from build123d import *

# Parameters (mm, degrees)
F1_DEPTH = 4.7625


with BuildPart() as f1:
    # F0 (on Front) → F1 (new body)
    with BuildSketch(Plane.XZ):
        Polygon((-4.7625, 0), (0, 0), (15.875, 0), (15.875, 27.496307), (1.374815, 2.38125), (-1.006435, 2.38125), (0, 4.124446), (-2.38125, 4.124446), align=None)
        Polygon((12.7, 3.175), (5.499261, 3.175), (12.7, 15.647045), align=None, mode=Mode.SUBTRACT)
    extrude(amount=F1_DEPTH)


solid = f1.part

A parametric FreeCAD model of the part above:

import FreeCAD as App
import Part
import Sketcher
Q = App.Units.Quantity


def add_polygon(sketch, points):
    """Adds a closed chain of lines whose ends are joined by coincident constraints."""
    first, n = sketch.GeometryCount, len(points)
    for a, b in zip(points, points[1:] + points[:1]):
        sketch.addGeometry(Part.LineSegment(App.Vector(*a, 0), App.Vector(*b, 0)), False)
    for i in range(n):
        sketch.addConstraint(Sketcher.Constraint("Coincident", first + i, 2, first + (i + 1) % n, 1))

doc = App.newDocument("Part")
body = doc.addObject("PartDesign::Body", "Body")

sketch1 = body.newObject("Sketcher::SketchObject", "Sketch")
sketch1.AttachmentSupport = (doc.getObject("XZ_Plane"), [""])
sketch1.MapMode = "FlatFace"
add_polygon(sketch1, [(-4.7625, 0), (15.875, 0), (15.875, 27.496307), (1.374815, 2.38125), (-1.006435, 2.38125), (0, 4.124446), (-2.38125, 4.124446)])
add_polygon(sketch1, [(12.7, 15.647045), (12.7, 3.175), (5.499261, 3.175)])
sketch1.addConstraint([
    Sketcher.Constraint("Horizontal", 0),
    Sketcher.Constraint("Vertical", 1),
    Sketcher.Constraint("Horizontal", 3),
    Sketcher.Constraint("Horizontal", 5),
    Sketcher.Constraint("Vertical", 7),
    Sketcher.Constraint("Horizontal", 8),
    Sketcher.Constraint("PointOnObject", 0, 2, -1),
    Sketcher.Constraint("PointOnObject", 4, 2, -2),
    Sketcher.Constraint("Parallel", 2, 4),
    Sketcher.Constraint("Parallel", 4, 6),
    Sketcher.Constraint("Parallel", 6, 9),
    Sketcher.Constraint("Equal", 3, 5),
    Sketcher.Constraint("Angle", 2, Q("-120 deg")),
    Sketcher.Constraint("DistanceX", -1, 1, 7, 2, Q("0.5 in")),
    Sketcher.Constraint("DistanceX", 0, 1, 0, 2, Q("0.8125 in")),
    Sketcher.Constraint("DistanceX", 3, 2, 3, 1, Q("0.09375 in")),
    Sketcher.Constraint("Distance", 6, Q("0.1875 in")),
    Sketcher.Constraint("DistanceY", -1, 1, 2, 2, Q("0.09375 in")),
    Sketcher.Constraint("DistanceY", -1, 1, 7, 2, Q("0.125 in")),
    Sketcher.Constraint("DistanceX", 8, 2, 8, 1, Q("7.200739 mm")),
])
pad1 = body.newObject("PartDesign::Pad", "Pad")
pad1.Profile = sketch1
pad1.Length = Q("0.1875 in")

doc.recompute()
